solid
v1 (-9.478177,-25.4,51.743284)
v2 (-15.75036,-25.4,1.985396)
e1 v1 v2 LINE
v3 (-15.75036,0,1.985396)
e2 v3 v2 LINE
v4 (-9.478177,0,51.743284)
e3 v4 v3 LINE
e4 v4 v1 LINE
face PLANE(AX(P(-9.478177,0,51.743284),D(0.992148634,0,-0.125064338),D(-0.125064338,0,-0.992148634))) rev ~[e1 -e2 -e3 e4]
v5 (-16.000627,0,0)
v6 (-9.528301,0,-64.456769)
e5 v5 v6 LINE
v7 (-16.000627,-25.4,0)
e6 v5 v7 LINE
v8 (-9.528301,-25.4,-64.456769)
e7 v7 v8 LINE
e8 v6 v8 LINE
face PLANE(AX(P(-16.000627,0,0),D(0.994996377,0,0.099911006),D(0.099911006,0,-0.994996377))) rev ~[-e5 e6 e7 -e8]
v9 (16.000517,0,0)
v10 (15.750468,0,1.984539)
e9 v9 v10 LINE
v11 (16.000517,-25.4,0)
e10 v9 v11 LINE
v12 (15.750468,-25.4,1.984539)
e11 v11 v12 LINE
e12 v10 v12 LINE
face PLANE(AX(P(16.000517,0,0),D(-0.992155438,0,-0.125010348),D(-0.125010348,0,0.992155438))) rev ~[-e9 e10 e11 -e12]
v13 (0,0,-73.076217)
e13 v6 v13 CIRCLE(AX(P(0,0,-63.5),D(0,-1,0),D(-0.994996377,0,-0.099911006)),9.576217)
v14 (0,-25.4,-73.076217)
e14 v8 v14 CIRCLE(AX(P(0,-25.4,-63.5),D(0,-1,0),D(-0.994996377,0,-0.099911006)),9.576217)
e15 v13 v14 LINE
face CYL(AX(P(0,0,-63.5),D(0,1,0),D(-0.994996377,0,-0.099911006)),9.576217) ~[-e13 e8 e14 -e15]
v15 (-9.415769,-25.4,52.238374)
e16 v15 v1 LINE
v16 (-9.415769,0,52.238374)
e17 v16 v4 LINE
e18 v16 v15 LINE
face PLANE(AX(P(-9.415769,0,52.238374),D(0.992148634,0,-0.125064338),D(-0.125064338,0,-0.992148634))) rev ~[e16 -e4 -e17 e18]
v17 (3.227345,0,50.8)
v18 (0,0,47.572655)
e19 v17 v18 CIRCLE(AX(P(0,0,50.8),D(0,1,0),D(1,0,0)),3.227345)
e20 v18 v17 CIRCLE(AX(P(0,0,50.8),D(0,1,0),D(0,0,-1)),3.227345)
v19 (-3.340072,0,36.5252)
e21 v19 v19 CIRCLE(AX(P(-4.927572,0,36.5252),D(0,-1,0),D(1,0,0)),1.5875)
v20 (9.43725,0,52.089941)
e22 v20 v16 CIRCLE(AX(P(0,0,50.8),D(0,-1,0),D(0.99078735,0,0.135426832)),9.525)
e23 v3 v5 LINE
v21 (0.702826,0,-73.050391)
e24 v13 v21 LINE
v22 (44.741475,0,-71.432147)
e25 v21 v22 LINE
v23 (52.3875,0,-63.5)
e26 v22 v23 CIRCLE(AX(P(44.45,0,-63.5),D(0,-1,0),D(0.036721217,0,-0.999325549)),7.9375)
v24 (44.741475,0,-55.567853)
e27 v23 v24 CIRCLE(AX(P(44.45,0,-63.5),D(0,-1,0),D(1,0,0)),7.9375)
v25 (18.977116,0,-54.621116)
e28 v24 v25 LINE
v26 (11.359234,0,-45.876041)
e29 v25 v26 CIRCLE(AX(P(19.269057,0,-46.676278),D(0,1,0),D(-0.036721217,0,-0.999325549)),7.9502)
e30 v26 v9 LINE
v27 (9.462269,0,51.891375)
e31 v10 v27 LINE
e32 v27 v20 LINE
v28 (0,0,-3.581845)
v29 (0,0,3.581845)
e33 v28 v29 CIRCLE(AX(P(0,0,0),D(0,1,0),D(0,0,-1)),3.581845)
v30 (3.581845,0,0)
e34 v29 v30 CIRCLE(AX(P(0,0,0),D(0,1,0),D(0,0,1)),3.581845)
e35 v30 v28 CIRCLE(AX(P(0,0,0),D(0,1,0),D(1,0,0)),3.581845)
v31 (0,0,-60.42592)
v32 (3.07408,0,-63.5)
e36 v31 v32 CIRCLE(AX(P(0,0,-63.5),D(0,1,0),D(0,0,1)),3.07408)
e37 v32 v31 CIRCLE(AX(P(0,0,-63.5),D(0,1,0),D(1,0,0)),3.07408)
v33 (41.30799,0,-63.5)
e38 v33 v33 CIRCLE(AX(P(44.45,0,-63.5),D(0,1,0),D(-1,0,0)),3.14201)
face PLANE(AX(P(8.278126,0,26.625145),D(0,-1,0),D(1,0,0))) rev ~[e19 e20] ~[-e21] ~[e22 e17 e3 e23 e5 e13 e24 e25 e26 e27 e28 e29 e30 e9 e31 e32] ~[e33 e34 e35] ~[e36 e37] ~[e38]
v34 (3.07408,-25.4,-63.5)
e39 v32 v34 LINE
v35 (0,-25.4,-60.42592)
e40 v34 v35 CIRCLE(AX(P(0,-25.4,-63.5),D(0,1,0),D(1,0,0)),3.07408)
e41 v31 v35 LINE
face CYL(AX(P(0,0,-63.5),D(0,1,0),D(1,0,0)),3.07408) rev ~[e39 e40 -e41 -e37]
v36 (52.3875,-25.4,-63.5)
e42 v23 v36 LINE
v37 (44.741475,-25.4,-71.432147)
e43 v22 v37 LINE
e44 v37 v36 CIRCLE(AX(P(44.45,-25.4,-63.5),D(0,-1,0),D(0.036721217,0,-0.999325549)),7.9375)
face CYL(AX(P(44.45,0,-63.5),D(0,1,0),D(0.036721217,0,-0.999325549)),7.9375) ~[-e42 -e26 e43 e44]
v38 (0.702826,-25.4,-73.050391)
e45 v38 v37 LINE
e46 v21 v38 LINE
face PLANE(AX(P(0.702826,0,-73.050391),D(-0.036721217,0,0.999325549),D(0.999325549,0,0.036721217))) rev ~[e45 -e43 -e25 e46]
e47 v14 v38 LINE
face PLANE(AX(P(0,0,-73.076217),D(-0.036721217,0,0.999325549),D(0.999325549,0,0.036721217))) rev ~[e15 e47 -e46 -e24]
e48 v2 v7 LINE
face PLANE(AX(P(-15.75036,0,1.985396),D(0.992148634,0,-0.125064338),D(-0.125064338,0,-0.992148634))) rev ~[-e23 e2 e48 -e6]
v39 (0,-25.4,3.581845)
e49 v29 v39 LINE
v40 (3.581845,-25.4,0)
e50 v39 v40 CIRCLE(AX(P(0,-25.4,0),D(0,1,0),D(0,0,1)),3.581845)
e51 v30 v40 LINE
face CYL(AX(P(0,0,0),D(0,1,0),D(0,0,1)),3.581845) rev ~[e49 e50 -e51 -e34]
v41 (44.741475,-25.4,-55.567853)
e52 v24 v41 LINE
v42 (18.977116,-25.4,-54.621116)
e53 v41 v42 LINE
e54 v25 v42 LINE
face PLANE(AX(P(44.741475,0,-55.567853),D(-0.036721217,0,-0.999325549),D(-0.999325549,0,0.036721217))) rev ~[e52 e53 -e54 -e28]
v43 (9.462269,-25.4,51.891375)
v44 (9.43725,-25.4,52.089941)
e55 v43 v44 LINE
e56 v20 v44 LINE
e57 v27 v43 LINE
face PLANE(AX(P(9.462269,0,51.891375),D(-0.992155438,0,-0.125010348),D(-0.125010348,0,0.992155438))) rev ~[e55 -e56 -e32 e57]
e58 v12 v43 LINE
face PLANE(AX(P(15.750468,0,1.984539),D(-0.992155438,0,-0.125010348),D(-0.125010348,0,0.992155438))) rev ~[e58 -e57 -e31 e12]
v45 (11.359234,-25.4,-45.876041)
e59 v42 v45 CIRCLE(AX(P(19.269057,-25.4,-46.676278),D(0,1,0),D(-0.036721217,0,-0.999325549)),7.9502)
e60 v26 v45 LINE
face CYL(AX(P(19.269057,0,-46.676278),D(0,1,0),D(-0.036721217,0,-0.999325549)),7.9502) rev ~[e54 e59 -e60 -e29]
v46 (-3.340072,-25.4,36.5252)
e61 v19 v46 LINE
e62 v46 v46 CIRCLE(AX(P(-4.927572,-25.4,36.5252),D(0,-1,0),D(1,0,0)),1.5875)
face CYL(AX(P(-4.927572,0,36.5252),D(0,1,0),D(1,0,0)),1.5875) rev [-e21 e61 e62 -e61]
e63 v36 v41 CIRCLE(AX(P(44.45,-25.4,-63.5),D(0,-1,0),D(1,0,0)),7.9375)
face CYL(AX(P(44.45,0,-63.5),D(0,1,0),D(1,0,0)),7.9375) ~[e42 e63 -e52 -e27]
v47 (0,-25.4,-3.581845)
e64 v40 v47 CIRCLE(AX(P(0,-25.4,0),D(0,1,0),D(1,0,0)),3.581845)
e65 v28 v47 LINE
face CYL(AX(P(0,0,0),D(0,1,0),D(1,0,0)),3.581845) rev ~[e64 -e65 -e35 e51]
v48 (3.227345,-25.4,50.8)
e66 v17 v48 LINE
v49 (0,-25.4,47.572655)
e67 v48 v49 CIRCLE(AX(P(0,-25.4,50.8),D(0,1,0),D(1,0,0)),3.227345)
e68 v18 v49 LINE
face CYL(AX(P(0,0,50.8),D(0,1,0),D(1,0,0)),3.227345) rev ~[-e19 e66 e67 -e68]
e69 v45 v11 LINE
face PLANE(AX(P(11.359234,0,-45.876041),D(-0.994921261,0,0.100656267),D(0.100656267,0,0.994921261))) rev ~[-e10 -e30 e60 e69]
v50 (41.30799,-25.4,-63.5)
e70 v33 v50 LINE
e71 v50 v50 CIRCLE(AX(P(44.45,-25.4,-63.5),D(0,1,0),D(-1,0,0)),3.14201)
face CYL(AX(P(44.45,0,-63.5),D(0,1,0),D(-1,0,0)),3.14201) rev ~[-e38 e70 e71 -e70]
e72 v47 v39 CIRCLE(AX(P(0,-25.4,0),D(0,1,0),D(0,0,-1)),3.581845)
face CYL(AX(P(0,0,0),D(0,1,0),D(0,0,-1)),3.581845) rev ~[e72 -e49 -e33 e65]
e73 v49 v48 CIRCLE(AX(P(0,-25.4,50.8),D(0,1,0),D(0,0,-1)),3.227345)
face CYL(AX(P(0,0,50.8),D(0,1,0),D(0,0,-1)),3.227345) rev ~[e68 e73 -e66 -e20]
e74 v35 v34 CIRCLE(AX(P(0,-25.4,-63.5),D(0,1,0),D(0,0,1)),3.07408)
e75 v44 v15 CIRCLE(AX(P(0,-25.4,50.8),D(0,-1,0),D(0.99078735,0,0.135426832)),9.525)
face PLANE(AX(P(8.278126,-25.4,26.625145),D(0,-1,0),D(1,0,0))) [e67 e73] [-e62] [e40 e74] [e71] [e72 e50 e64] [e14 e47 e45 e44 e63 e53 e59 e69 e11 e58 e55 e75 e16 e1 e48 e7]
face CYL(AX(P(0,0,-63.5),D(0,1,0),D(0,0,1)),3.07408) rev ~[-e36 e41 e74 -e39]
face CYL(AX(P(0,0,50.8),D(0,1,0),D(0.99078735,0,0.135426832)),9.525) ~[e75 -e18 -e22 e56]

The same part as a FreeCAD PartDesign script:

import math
import FreeCAD as App
import Part
import Sketcher
Q = App.Units.Quantity

doc = App.newDocument("Part")
body = doc.addObject("PartDesign::Body", "Body")

# Sketch on XZ plane
sketch1 = body.newObject("Sketcher::SketchObject", "Sketch")
sketch1.AttachmentSupport = (doc.getObject("XZ_Plane"), [""])
sketch1.MapMode = "FlatFace"
sketch1.addGeometry(Part.LineSegment(App.Vector(-9.478177, 51.743284, 0), App.Vector(-15.75036, 1.985396, 0)), False)
sketch1.addGeometry(Part.LineSegment(App.Vector(-15.75036, 1.985396, 0), App.Vector(-16.000627, 0, 0)), False)
sketch1.addGeometry(Part.LineSegment(App.Vector(-16.000627, 0, 0), App.Vector(-9.528301, -64.456769, 0)), False)
sketch1.addGeometry(Part.ArcOfCircle(Part.Circle(App.Vector(0, -63.5, 0), App.Vector(0, 0, 1), 9.576217), math.radians(-174.265954), math.radians(-90)), False)
sketch1.addGeometry(Part.LineSegment(App.Vector(0, -73.076217, 0), App.Vector(0.702826, -73.050391, 0)), False)
sketch1.addGeometry(Part.LineSegment(App.Vector(0.702826, -73.050391, 0), App.Vector(44.741475, -71.432147, 0)), False)
sketch1.addGeometry(Part.ArcOfCircle(Part.Circle(App.Vector(44.45, -63.5, 0), App.Vector(0, 0, 1), 7.9375), math.radians(-87.895556), math.radians(0)), False)
sketch1.addGeometry(Part.ArcOfCircle(Part.Circle(App.Vector(44.45, -63.5, 0), App.Vector(0, 0, 1), 7.9375), math.radians(0), math.radians(87.895556)), False)
sketch1.addGeometry(Part.LineSegment(App.Vector(44.741475, -55.567853, 0), App.Vector(18.977116, -54.621116, 0)), False)
sketch1.addGeometry(Part.ArcOfCircle(Part.Circle(App.Vector(19.269057, -46.676278, 0), App.Vector(0, 0, 1), 7.9502), math.radians(174.223038), math.radians(267.895556)), False)
sketch1.addGeometry(Part.LineSegment(App.Vector(11.359234, -45.876041, 0), App.Vector(16.000517, 0, 0)), False)
sketch1.addGeometry(Part.LineSegment(App.Vector(16.000517, 0, 0), App.Vector(15.750468, 1.984539, 0)), False)
sketch1.addGeometry(Part.LineSegment(App.Vector(15.750468, 1.984539, 0), App.Vector(9.462269, 51.891375, 0)), False)
sketch1.addGeometry(Part.LineSegment(App.Vector(9.462269, 51.891375, 0), App.Vector(9.43725, 52.089941, 0)), False)
sketch1.addGeometry(Part.ArcOfCircle(Part.Circle(App.Vector(0, 50.8, 0), App.Vector(0, 0, 1), 9.525), math.radians(7.783302), math.radians(171.314516)), False)
sketch1.addGeometry(Part.LineSegment(App.Vector(-9.415769, 52.238374, 0), App.Vector(-9.478177, 51.743284, 0)), False)
sketch1.addGeometry(Part.ArcOfCircle(Part.Circle(App.Vector(0, -63.5, 0), App.Vector(0, 0, 1), 3.07408), math.radians(90), math.radians(360)), False)
sketch1.addGeometry(Part.ArcOfCircle(Part.Circle(App.Vector(0, -63.5, 0), App.Vector(0, 0, 1), 3.07408), math.radians(0), math.radians(90)), False)
sketch1.addGeometry(Part.Circle(App.Vector(44.45, -63.5, 0), App.Vector(0, 0, 1), 3.14201), False)
sketch1.addGeometry(Part.ArcOfCircle(Part.Circle(App.Vector(0, 0, 0), App.Vector(0, 0, 1), 3.581845), math.radians(0), math.radians(90)), False)
sketch1.addGeometry(Part.ArcOfCircle(Part.Circle(App.Vector(0, 0, 0), App.Vector(0, 0, 1), 3.581845), math.radians(-90), math.radians(0)), False)
sketch1.addGeometry(Part.ArcOfCircle(Part.Circle(App.Vector(0, 0, 0), App.Vector(0, 0, 1), 3.581845), math.radians(90), math.radians(270)), False)
sketch1.addGeometry(Part.Circle(App.Vector(-4.927572, 36.5252, 0), App.Vector(0, 0, 1), 1.5875), False)
sketch1.addGeometry(Part.ArcOfCircle(Part.Circle(App.Vector(0, 50.8, 0), App.Vector(0, 0, 1), 3.227345), math.radians(0), math.radians(270)), False)
sketch1.addGeometry(Part.ArcOfCircle(Part.Circle(App.Vector(0, 50.8, 0), App.Vector(0, 0, 1), 3.227345), math.radians(-90), math.radians(0)), False)
sketch1.addConstraint(Sketcher.Constraint("Coincident", 0, 2, 1, 1))
sketch1.addConstraint(Sketcher.Constraint("Coincident", 1, 2, 2, 1))
sketch1.addConstraint(Sketcher.Constraint("Coincident", 2, 2, 3, 1))
sketch1.addConstraint(Sketcher.Constraint("Coincident", 3, 2, 4, 1))
sketch1.addConstraint(Sketcher.Constraint("Coincident", 4, 2, 5, 1))
sketch1.addConstraint(Sketcher.Constraint("Coincident", 5, 2, 6, 1))
sketch1.addConstraint(Sketcher.Constraint("Coincident", 6, 2, 7, 1))
sketch1.addConstraint(Sketcher.Constraint("Coincident", 7, 2, 8, 1))
sketch1.addConstraint(Sketcher.Constraint("Coincident", 8, 2, 9, 2))
sketch1.addConstraint(Sketcher.Constraint("Coincident", 9, 1, 10, 1))
sketch1.addConstraint(Sketcher.Constraint("Coincident", 10, 2, 11, 1))
sketch1.addConstraint(Sketcher.Constraint("Coincident", 11, 2, 12, 1))
sketch1.addConstraint(Sketcher.Constraint("Coincident", 12, 2, 13, 1))
sketch1.addConstraint(Sketcher.Constraint("Coincident", 13, 2, 14, 1))
sketch1.addConstraint(Sketcher.Constraint("Coincident", 14, 2, 15, 1))
sketch1.addConstraint(Sketcher.Constraint("Coincident", 15, 2, 0, 1))
sketch1.addConstraint(Sketcher.Constraint("Coincident", 16, 1, 17, 2))
sketch1.addConstraint(Sketcher.Constraint("Coincident", 17, 1, 16, 2))
sketch1.addConstraint(Sketcher.Constraint("Coincident", 19, 1, 20, 2))
sketch1.addConstraint(Sketcher.Constraint("Coincident", 20, 1, 21, 2))
sketch1.addConstraint(Sketcher.Constraint("Coincident", 21, 1, 19, 2))
sketch1.addConstraint(Sketcher.Constraint("Coincident", 23, 1, 24, 2))
sketch1.addConstraint(Sketcher.Constraint("Coincident", 24, 1, 23, 2))
sketch1.addConstraint(Sketcher.Constraint("Coincident", 19, 3, -1, 1))
sketch1.addConstraint(Sketcher.Constraint("Coincident", 20, 3, -1, 1))
sketch1.addConstraint(Sketcher.Constraint("Coincident", 7, 3, 6, 3))
sketch1.addConstraint(Sketcher.Constraint("Coincident", 16, 3, 3, 3))
sketch1.addConstraint(Sketcher.Constraint("Coincident", 18, 3, 6, 3))
sketch1.addConstraint(Sketcher.Constraint("Coincident", 23, 3, 14, 3))
sketch1.addConstraint(Sketcher.Constraint("PointOnObject", 3, 3, -2))
sketch1.addConstraint(Sketcher.Constraint("PointOnObject", 14, 3, -2))
sketch1.addConstraint(Sketcher.Constraint("PointOnObject", 17, 3, -2))
sketch1.addConstraint(Sketcher.Constraint("PointOnObject", 24, 3, -2))
sketch1.addConstraint(Sketcher.Constraint("PointOnObject", 1, 2, -1))
sketch1.addConstraint(Sketcher.Constraint("PointOnObject", 3, 2, -2))
sketch1.addConstraint(Sketcher.Constraint("PointOnObject", 10, 2, -1))
sketch1.addConstraint(Sketcher.Constraint("PointOnObject", 16, 1, -2))
sketch1.addConstraint(Sketcher.Constraint("PointOnObject", 19, 1, -1))
sketch1.addConstraint(Sketcher.Constraint("PointOnObject", 20, 1, -2))
sketch1.addConstraint(Sketcher.Constraint("PointOnObject", 21, 1, -2))
sketch1.addConstraint(Sketcher.Constraint("PointOnObject", 24, 1, -2))
sketch1.addConstraint(Sketcher.Constraint("Diameter", 22, Q("0.125 in")))
sketch1.addConstraint(Sketcher.Constraint("DistanceY", -1, 1, 14, 3, Q("2 in")))
sketch1.addConstraint(Sketcher.Constraint("DistanceY", -1, 1, 23, 1, Q("2 in")))
sketch1.addConstraint(Sketcher.Constraint("Radius", 6, Q("0.3125 in")))
sketch1.addConstraint(Sketcher.Constraint("Radius", 9, Q("0.313 in")))
sketch1.addConstraint(Sketcher.Constraint("Radius", 14, Q("0.375 in")))
sketch1.addConstraint(Sketcher.Constraint("DistanceY", 3, 3, -1, 1, Q("2.5 in")))
sketch1.addConstraint(Sketcher.Constraint("DistanceY", 6, 3, -1, 1, Q("2.5 in")))
sketch1.addConstraint(Sketcher.Constraint("DistanceY", 6, 2, -1, 1, Q("2.5 in")))
sketch1.addConstraint(Sketcher.Constraint("DistanceY", 17, 1, -1, 1, Q("2.5 in")))
sketch1.addConstraint(Sketcher.Constraint("DistanceX", -1, 1, 6, 3, Q("1.75 in")))
sketch1.addConstraint(Sketcher.Constraint("Diameter", 18, 6.284019))
sketch1.addConstraint(Sketcher.Constraint("DistanceY", -1, 1, 22, 3, Q("1.438 in")))
sketch1.addConstraint(Sketcher.Constraint("Radius", 16, 3.07408))
sketch1.addConstraint(Sketcher.Constraint("Radius", 3, 9.576217))
sketch1.addConstraint(Sketcher.Constraint("Radius", 19, 3.581845))
sketch1.addConstraint(Sketcher.Constraint("Radius", 23, 3.227345))
sketch1.addConstraint(Sketcher.Constraint("Distance", 4, 0.703301))
sketch1.addConstraint(Sketcher.Constraint("DistanceX", 2, 2, -1, 1, 9.528301))
sketch1.addConstraint(Sketcher.Constraint("DistanceX", 12, 2, 11, 2, 6.288199))
sketch1.addConstraint(Sketcher.Constraint("Distance", 2, 64.780909))
sketch1.addConstraint(Sketcher.Constraint("Distance", 5, 44.06837))
sketch1.addConstraint(Sketcher.Constraint("Distance", 11, 2.00023))
sketch1.addConstraint(Sketcher.Constraint("Distance", 12, 50.301428))
sketch1.addConstraint(Sketcher.Constraint("DistanceY", 9, 3, -1, 1, 46.676278))
sketch1.addConstraint(Sketcher.Constraint("DistanceX", 0, 2, -1, 1, 15.75036))
sketch1.addConstraint(Sketcher.Constraint("DistanceY", 4, 2, -1, 1, 73.050391))
sketch1.addConstraint(Sketcher.Constraint("DistanceY", 9, 1, -1, 1, 45.876041))
sketch1.addConstraint(Sketcher.Constraint("DistanceY", -1, 1, 11, 2, 1.984539))
sketch1.addConstraint(Sketcher.Constraint("DistanceX", -1, 1, 12, 2, 9.462269))
sketch1.addConstraint(Sketcher.Constraint("DistanceX", -1, 1, 13, 2, 9.43725))
sketch1.addConstraint(Sketcher.Constraint("DistanceX", 14, 2, -1, 1, 9.415769))
sketch1.addConstraint(Sketcher.Constraint("DistanceX", 22, 3, 9, 3, 24.19663))
sketch1.addConstraint(Sketcher.Constraint("DistanceX", 0, 2, 21, 3, 15.75036))
sketch1.addConstraint(Sketcher.Constraint("DistanceX", 2, 2, 9, 3, 28.797358))
sketch1.addConstraint(Sketcher.Constraint("DistanceX", 8, 2, 9, 3, 0.291941))
sketch1.addConstraint(Sketcher.Constraint("DistanceX", 8, 2, 7, 2, 25.764358))
sketch1.addConstraint(Sketcher.Constraint("DistanceX", 15, 2, 14, 2, 0.062408))
sketch1.addConstraint(Sketcher.Constraint("DistanceY", 15, 2, 14, 2, 0.49509))
sketch1.addConstraint(Sketcher.Constraint("Distance", 0, 50.151647))
pad1 = body.newObject("PartDesign::Pad", "Pad")
pad1.Profile = sketch1
pad1.Length = Q("1 in")

doc.recompute()
